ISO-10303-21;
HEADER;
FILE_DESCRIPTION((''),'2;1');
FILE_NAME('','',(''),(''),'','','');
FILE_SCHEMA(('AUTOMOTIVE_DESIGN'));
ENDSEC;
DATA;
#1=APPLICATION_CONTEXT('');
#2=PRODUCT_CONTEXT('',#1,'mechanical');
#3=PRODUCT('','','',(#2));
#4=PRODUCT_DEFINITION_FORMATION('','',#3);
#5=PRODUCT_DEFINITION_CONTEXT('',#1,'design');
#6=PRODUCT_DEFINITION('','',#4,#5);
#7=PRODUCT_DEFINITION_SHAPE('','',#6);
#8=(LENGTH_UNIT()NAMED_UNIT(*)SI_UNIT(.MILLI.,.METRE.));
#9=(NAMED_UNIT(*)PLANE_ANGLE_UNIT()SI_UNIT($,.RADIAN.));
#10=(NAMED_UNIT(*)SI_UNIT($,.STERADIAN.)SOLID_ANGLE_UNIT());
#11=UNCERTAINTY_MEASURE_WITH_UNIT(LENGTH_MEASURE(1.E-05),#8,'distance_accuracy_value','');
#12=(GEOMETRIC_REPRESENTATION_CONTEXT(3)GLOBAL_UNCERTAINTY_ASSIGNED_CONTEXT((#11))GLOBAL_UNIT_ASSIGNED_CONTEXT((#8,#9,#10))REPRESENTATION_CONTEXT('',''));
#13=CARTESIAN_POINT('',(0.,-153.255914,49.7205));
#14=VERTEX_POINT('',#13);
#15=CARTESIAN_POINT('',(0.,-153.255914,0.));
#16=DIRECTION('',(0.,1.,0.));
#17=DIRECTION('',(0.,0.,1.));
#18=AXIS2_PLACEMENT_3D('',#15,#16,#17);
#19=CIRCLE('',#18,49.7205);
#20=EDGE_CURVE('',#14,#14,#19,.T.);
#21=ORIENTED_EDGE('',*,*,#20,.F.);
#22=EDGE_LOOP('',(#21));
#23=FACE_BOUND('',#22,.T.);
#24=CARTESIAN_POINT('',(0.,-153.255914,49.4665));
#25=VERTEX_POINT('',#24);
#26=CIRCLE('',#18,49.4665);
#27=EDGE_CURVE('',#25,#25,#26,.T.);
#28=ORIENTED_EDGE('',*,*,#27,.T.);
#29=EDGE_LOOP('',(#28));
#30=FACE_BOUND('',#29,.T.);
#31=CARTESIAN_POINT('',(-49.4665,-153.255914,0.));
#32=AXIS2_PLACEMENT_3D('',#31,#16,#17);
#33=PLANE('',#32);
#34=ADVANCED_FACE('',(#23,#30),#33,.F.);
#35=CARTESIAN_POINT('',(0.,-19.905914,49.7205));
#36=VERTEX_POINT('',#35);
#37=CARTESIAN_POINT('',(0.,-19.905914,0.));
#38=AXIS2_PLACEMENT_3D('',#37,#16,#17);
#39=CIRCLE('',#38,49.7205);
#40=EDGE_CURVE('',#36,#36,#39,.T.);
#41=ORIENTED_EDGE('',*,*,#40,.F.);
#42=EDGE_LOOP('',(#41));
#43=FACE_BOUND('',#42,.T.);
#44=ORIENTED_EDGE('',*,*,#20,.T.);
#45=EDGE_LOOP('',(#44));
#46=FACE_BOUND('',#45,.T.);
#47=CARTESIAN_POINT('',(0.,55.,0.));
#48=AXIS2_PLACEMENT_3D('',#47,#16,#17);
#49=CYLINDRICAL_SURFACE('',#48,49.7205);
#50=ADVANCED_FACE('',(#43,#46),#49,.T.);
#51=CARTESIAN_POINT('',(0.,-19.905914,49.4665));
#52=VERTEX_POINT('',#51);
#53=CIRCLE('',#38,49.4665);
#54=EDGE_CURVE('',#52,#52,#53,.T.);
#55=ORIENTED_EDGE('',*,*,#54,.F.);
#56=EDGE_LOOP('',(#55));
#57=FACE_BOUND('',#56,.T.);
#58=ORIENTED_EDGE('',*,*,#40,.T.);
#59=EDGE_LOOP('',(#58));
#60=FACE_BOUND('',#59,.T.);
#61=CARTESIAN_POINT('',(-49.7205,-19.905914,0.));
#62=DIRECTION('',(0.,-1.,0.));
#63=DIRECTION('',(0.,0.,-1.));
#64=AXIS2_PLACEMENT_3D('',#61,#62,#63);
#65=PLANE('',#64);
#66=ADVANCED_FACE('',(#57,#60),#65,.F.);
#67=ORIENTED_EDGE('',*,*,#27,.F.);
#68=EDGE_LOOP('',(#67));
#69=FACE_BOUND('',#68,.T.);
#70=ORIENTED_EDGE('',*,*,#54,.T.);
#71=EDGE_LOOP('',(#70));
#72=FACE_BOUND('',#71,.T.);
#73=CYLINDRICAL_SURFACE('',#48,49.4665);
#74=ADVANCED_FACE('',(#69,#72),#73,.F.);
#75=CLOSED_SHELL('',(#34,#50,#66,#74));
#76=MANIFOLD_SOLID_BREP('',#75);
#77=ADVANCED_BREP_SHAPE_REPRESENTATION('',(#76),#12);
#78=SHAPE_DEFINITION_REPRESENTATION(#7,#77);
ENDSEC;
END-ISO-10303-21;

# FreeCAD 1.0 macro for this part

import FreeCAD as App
import Part
import Sketcher

V = App.Vector
Q = App.Units.Quantity

doc = App.newDocument("Part")
body = doc.addObject("PartDesign::Body", "Body")

# Sketch on XY plane
sketch1 = body.newObject("Sketcher::SketchObject", "Sketch")
sketch1.AttachmentSupport = (doc.getObject("XY_Plane"), [""])
sketch1.MapMode = "FlatFace"
sketch1.addGeometry([
    Part.LineSegment(V(-49.72, -19.91, 0), V(-49.72, -153.26, 0)),
    Part.LineSegment(V(-49.72, -153.26, 0), V(-49.47, -153.26, 0)),
    Part.LineSegment(V(-49.47, -153.26, 0), V(-49.47, -19.91, 0)),
    Part.LineSegment(V(-49.47, -19.91, 0), V(-49.72, -19.91, 0)),
], False)
sketch1.addConstraint([
    Sketcher.Constraint("Coincident", 0, 2, 1, 1),
    Sketcher.Constraint("Coincident", 1, 2, 2, 1),
    Sketcher.Constraint("Coincident", 2, 2, 3, 1),
    Sketcher.Constraint("Coincident", 3, 2, 0, 1),
    Sketcher.Constraint("Vertical", 0),
    Sketcher.Constraint("Horizontal", 1),
    Sketcher.Constraint("Vertical", 2),
    Sketcher.Constraint("Horizontal", 3),
    Sketcher.Constraint("DistanceX", 1, 1, 1, 2, Q("0.01 in")),
    Sketcher.Constraint("DistanceY", 0, 2, 0, 1, Q("5.25 in")),
    Sketcher.Constraint("DistanceX", 0, 2, -1, 1, Q("1.9575 in")),
    Sketcher.Constraint("DistanceY", 0, 2, -1, 1, 153.255914),
])
revolution = body.newObject("PartDesign::Revolution", "Revolution")
revolution.Profile = sketch1
revolution.ReferenceAxis = (sketch1, ["V_Axis"])
revolution.Angle = 360

doc.recompute()
